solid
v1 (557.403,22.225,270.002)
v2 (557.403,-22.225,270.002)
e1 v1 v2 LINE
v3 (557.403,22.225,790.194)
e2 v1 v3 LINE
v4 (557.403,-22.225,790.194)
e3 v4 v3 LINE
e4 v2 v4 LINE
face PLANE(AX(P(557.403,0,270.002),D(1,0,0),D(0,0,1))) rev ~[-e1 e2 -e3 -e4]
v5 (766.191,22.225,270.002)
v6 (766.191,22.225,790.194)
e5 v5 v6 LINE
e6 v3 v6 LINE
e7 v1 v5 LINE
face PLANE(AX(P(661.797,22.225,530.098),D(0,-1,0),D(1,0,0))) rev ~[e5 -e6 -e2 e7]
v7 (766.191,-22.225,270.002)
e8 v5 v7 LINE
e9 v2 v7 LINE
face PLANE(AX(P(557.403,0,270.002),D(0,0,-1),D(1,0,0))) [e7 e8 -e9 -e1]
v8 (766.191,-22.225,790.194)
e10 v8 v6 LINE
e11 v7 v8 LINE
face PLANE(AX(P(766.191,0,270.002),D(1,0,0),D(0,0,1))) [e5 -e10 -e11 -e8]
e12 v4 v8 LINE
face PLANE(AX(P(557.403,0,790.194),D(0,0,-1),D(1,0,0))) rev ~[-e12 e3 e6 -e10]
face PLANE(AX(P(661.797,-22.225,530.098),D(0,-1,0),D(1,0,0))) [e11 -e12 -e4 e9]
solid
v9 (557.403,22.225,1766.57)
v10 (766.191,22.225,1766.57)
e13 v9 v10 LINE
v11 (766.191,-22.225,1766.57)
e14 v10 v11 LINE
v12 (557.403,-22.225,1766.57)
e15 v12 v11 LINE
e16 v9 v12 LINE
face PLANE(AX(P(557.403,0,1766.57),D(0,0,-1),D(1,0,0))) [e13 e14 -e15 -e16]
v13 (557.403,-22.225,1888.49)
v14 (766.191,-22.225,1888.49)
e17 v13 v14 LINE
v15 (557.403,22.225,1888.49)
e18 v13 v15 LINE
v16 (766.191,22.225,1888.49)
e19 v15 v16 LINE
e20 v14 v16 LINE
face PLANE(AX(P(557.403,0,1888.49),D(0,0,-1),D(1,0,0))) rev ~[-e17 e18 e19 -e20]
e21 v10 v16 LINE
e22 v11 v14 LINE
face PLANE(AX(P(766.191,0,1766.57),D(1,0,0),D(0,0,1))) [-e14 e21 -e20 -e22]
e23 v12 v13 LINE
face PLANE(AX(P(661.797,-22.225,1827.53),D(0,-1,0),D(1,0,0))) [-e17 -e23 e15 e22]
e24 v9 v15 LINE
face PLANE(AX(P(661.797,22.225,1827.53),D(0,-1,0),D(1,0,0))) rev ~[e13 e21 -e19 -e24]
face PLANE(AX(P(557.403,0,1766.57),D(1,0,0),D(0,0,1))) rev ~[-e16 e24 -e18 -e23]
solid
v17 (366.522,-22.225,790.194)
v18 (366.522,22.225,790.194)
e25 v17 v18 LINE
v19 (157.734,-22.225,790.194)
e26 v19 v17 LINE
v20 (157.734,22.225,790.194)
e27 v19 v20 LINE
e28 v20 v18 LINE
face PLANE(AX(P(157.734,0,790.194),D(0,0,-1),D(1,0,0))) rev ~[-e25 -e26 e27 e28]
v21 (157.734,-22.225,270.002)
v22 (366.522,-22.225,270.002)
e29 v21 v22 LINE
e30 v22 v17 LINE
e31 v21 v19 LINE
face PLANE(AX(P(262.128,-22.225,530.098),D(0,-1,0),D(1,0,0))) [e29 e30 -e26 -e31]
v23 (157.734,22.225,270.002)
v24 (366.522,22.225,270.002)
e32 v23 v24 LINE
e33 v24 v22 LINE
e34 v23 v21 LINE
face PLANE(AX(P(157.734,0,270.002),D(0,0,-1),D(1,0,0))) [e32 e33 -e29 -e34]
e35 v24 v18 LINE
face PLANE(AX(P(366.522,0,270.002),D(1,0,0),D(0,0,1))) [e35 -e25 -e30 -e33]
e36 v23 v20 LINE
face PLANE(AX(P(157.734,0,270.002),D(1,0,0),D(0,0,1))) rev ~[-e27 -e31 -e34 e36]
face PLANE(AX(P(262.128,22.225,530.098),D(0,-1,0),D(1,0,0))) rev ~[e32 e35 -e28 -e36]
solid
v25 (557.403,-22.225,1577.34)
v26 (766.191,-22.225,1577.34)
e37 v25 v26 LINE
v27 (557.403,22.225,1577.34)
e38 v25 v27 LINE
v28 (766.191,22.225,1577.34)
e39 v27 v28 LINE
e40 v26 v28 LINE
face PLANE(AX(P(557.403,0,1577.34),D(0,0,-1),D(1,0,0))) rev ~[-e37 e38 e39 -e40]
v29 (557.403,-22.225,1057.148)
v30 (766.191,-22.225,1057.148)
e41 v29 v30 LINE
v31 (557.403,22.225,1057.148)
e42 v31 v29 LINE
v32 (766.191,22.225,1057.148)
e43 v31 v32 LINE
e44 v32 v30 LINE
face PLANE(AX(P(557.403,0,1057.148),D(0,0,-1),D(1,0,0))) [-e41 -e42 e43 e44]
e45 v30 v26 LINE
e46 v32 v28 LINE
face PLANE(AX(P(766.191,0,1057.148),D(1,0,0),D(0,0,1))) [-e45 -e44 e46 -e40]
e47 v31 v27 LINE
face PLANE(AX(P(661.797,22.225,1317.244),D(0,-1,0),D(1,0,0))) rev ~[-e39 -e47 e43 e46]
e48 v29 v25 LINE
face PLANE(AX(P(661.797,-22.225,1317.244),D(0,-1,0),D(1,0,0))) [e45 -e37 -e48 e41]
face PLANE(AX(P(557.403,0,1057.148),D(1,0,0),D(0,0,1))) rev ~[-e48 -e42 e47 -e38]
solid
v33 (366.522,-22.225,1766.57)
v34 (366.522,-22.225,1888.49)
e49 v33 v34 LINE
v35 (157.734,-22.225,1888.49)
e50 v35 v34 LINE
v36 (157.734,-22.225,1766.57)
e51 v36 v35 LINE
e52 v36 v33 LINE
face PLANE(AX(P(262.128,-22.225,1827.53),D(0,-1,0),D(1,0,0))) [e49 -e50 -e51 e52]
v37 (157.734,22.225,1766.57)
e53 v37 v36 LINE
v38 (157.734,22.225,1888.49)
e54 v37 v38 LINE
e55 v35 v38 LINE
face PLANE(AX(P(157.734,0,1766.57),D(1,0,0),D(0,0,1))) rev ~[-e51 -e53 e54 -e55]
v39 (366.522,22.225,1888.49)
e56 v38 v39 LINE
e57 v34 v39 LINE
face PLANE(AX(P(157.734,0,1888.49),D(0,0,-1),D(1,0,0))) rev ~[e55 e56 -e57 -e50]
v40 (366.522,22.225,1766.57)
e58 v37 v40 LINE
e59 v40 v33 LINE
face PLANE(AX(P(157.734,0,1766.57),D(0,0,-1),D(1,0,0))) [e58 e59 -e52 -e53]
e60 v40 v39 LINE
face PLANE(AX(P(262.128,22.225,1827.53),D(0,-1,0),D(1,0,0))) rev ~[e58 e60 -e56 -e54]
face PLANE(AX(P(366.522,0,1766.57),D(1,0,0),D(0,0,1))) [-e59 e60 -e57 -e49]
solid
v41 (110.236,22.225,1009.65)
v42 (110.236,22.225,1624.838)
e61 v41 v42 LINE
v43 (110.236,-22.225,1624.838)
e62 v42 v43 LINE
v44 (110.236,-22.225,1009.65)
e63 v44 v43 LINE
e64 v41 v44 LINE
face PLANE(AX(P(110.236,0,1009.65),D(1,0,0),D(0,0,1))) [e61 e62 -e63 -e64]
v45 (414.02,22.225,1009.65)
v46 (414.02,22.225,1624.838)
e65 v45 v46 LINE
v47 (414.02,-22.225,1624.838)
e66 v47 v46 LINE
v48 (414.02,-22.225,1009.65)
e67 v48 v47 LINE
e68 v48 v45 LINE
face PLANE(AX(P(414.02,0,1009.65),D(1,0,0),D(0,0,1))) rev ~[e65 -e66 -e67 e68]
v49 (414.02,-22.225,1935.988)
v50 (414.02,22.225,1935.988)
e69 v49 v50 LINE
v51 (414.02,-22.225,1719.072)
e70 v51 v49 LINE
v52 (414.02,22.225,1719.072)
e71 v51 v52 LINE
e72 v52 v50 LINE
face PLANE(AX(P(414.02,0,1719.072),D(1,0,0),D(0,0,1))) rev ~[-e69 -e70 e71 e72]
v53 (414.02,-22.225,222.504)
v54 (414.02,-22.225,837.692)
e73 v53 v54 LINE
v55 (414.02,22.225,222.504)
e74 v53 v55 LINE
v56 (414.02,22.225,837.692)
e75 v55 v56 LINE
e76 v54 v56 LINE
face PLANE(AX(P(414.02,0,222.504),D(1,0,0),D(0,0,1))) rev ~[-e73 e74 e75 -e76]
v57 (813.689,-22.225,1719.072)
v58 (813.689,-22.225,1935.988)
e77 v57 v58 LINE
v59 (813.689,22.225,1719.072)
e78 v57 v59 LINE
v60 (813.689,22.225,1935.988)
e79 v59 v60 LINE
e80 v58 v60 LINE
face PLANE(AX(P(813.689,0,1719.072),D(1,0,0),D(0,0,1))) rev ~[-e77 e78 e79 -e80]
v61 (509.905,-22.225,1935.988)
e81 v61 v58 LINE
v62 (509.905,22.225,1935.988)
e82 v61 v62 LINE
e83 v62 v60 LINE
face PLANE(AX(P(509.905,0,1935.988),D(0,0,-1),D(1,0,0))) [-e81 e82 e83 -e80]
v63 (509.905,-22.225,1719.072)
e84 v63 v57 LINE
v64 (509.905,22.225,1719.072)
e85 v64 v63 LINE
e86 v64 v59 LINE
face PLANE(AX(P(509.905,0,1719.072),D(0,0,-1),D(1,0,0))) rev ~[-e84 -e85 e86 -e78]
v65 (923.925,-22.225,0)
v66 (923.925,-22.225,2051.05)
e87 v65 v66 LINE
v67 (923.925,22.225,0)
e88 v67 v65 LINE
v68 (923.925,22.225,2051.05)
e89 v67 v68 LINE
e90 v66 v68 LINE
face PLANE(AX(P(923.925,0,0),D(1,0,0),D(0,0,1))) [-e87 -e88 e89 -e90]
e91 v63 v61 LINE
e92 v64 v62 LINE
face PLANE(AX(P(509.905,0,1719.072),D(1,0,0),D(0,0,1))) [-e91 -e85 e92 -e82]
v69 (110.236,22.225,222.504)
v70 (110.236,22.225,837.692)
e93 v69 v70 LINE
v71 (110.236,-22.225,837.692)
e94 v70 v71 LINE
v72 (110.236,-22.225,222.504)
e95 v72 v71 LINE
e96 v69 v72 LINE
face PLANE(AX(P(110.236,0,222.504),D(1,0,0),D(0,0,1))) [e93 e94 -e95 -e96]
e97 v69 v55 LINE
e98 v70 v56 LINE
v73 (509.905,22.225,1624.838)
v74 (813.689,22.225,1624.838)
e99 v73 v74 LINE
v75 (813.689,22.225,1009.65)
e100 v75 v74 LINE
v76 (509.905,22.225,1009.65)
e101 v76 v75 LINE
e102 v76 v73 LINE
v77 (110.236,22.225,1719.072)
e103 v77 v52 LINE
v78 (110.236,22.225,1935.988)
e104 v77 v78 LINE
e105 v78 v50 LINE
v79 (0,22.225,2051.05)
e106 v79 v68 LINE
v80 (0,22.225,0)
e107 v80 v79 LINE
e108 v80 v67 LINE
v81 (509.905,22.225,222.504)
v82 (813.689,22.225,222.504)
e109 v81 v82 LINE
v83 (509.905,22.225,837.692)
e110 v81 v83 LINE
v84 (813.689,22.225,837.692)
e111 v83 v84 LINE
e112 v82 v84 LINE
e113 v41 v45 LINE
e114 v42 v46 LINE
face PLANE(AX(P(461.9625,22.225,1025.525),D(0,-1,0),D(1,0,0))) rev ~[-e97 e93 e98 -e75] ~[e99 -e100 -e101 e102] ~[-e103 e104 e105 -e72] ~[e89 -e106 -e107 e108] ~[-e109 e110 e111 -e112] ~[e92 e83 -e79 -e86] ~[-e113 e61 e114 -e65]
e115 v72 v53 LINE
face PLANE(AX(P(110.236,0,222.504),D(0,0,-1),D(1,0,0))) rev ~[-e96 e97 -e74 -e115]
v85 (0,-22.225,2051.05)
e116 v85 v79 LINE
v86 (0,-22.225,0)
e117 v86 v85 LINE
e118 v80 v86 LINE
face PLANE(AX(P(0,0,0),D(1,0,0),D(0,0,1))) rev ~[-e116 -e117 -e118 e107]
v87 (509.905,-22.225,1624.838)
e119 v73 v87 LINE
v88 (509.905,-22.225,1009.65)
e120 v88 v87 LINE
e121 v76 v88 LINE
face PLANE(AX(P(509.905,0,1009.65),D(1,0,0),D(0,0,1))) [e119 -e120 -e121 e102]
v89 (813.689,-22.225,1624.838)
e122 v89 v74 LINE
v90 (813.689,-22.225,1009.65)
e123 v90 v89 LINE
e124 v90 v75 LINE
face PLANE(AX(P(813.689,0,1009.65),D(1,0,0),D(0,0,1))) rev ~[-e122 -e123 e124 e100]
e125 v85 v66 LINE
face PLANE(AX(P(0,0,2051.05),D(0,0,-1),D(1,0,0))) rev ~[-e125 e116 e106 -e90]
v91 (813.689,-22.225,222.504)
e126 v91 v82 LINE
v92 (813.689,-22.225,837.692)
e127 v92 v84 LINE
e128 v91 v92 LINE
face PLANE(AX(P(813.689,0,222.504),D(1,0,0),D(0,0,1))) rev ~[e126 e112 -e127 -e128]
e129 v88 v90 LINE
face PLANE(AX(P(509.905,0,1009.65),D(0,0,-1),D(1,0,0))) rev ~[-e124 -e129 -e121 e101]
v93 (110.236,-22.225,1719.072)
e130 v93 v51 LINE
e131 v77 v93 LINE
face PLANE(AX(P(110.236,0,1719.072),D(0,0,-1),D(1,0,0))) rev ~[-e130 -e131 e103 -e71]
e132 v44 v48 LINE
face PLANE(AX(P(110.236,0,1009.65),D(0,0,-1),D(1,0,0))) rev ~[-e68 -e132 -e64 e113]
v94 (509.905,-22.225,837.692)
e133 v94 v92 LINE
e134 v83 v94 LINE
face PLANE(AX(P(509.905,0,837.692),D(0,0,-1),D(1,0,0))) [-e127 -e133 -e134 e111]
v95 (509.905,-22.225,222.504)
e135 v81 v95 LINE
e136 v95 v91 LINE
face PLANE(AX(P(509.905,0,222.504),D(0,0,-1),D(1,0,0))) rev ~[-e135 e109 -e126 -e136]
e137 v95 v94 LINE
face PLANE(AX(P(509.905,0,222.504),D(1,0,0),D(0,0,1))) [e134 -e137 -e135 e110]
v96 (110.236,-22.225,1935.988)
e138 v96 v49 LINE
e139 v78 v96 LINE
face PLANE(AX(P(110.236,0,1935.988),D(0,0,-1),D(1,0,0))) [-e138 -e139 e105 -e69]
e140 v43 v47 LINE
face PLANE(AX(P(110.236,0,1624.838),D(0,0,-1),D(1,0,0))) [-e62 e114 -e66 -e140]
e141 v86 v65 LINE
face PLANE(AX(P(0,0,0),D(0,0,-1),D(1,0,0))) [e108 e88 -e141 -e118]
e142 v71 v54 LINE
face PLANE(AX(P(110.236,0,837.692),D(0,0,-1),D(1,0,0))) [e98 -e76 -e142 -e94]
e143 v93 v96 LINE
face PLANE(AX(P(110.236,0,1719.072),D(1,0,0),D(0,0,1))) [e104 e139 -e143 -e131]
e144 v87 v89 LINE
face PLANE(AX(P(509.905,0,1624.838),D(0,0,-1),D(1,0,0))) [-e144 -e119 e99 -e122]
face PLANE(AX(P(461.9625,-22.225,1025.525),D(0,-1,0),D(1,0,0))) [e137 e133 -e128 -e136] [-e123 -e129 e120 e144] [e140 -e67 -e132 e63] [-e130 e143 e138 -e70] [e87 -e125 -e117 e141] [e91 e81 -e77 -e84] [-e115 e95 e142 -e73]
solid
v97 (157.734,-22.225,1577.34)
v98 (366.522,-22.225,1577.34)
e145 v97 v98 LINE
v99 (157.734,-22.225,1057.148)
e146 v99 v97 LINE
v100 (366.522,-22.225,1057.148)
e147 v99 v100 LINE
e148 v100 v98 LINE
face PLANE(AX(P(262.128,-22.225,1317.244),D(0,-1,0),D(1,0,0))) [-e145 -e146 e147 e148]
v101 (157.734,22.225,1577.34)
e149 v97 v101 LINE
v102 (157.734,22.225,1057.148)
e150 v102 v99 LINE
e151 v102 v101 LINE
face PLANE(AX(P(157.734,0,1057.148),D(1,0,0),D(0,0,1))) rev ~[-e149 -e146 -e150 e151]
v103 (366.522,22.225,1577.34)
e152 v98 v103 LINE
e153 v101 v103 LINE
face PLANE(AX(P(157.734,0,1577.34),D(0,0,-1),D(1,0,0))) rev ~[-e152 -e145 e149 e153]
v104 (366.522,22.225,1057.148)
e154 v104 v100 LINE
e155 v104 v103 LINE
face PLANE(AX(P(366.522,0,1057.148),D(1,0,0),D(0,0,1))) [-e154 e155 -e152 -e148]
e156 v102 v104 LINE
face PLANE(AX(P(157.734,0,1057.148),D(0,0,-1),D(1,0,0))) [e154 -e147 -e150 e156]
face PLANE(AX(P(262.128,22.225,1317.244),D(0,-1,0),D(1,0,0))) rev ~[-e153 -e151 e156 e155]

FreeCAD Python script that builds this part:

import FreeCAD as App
import Part
import Sketcher
from FreeCAD import Vector
Q = App.Units.Quantity


def add_polygon(sketch, points):
    """Adds a closed chain of lines whose ends are joined by coincident constraints."""
    first, n = sketch.GeometryCount, len(points)
    for a, b in zip(points, points[1:] + points[:1]):
        sketch.addGeometry(Part.LineSegment(App.Vector(*a, 0), App.Vector(*b, 0)), False)
    for i in range(n):
        sketch.addConstraint(Sketcher.Constraint("Coincident", first + i, 2, first + (i + 1) % n, 1))

doc = App.newDocument("Part")
body = doc.addObject("PartDesign::Body", "Body")

# Sketch on XZ plane
sketch1 = doc.addObject("Sketcher::SketchObject", "Sketch")
body.addObject(sketch1)
sketch1.AttachmentSupport = (doc.XZ_Plane, [""])
sketch1.MapMode = "FlatFace"
add_polygon(sketch1, [(0, 2051.05), (0, 0), (923.925, 0), (923.925, 2051.05)])  # lines 0-3
add_polygon(sketch1, [(414.02, 222.504), (110.236, 222.504), (110.236, 837.692), (414.02, 837.692)])  # lines 4-7
add_polygon(sketch1, [(813.689, 222.504), (509.905, 222.504), (509.905, 837.692), (813.689, 837.692)])  # lines 8-11
add_polygon(sketch1, [(414.02, 1009.65), (110.236, 1009.65), (110.236, 1624.838), (414.02, 1624.838)])  # lines 12-15
add_polygon(sketch1, [(414.02, 1719.072), (110.236, 1719.072), (110.236, 1935.988), (414.02, 1935.988)])  # lines 16-19
add_polygon(sketch1, [(813.689, 1009.65), (509.905, 1009.65), (509.905, 1624.838), (813.689, 1624.838)])  # lines 20-23
add_polygon(sketch1, [(813.689, 1719.072), (509.905, 1719.072), (509.905, 1935.988), (813.689, 1935.988)])  # lines 24-27
sketch1.addConstraint(Sketcher.Constraint("Vertical", 0))
sketch1.addConstraint(Sketcher.Constraint("Horizontal", 1))
sketch1.addConstraint(Sketcher.Constraint("Vertical", 2))
sketch1.addConstraint(Sketcher.Constraint("Horizontal", 3))
sketch1.addConstraint(Sketcher.Constraint("Horizontal", 4))
sketch1.addConstraint(Sketcher.Constraint("Vertical", 5))
sketch1.addConstraint(Sketcher.Constraint("Horizontal", 6))
sketch1.addConstraint(Sketcher.Constraint("Vertical", 7))
sketch1.addConstraint(Sketcher.Constraint("Horizontal", 8))
sketch1.addConstraint(Sketcher.Constraint("Vertical", 9))
sketch1.addConstraint(Sketcher.Constraint("Horizontal", 10))
sketch1.addConstraint(Sketcher.Constraint("Vertical", 11))
sketch1.addConstraint(Sketcher.Constraint("Horizontal", 12))
sketch1.addConstraint(Sketcher.Constraint("Vertical", 13))
sketch1.addConstraint(Sketcher.Constraint("Horizontal", 14))
sketch1.addConstraint(Sketcher.Constraint("Vertical", 15))
sketch1.addConstraint(Sketcher.Constraint("Horizontal", 16))
sketch1.addConstraint(Sketcher.Constraint("Vertical", 17))
sketch1.addConstraint(Sketcher.Constraint("Horizontal", 18))
sketch1.addConstraint(Sketcher.Constraint("Vertical", 19))
sketch1.addConstraint(Sketcher.Constraint("Horizontal", 20))
sketch1.addConstraint(Sketcher.Constraint("Vertical", 21))
sketch1.addConstraint(Sketcher.Constraint("Horizontal", 22))
sketch1.addConstraint(Sketcher.Constraint("Vertical", 23))
sketch1.addConstraint(Sketcher.Constraint("Horizontal", 24))
sketch1.addConstraint(Sketcher.Constraint("Vertical", 25))
sketch1.addConstraint(Sketcher.Constraint("Horizontal", 26))
sketch1.addConstraint(Sketcher.Constraint("Vertical", 27))
sketch1.addConstraint(Sketcher.Constraint("Coincident", 0, 2, -1, 1))
sketch1.addConstraint(Sketcher.Constraint("Horizontal", 7, 2, 8, 2))
sketch1.addConstraint(Sketcher.Constraint("Horizontal", 6, 2, 9, 2))
sketch1.addConstraint(Sketcher.Constraint("Horizontal", 15, 2, 20, 2))
sketch1.addConstraint(Sketcher.Constraint("Horizontal", 14, 2, 21, 2))
sketch1.addConstraint(Sketcher.Constraint("Horizontal", 19, 2, 24, 2))
sketch1.addConstraint(Sketcher.Constraint("Horizontal", 18, 2, 25, 2))
sketch1.addConstraint(Sketcher.Constraint("Vertical", 5, 2, 12, 2))
sketch1.addConstraint(Sketcher.Constraint("Vertical", 7, 2, 14, 2))
sketch1.addConstraint(Sketcher.Constraint("Vertical", 13, 2, 16, 2))
sketch1.addConstraint(Sketcher.Constraint("Vertical", 15, 2, 18, 2))
sketch1.addConstraint(Sketcher.Constraint("Vertical", 9, 2, 20, 2))
sketch1.addConstraint(Sketcher.Constraint("Vertical", 11, 2, 22, 2))
sketch1.addConstraint(Sketcher.Constraint("Vertical", 21, 2, 24, 2))
sketch1.addConstraint(Sketcher.Constraint("Vertical", 23, 2, 26, 2))
sketch1.addConstraint(Sketcher.Constraint("Equal", 6, 8))
sketch1.addConstraint(Sketcher.Constraint("Equal", 11, 13))
sketch1.addConstraint(Sketcher.Constraint("DistanceX", 4, 2, 4, 1, Q("11.96 in")))
sketch1.addConstraint(Sketcher.Constraint("DistanceY", 0, 2, 0, 1, Q("80.75 in")))
sketch1.addConstraint(Sketcher.Constraint("DistanceY", 5, 1, 5, 2, Q("24.22 in")))
sketch1.addConstraint(Sketcher.Constraint("DistanceY", 17, 1, 17, 2, Q("8.54 in")))
sketch1.addConstraint(Sketcher.Constraint("DistanceX", -1, 1, 6, 2, Q("16.3 in")))
sketch1.addConstraint(Sketcher.Constraint("DistanceX", 8, 2, 1, 2, Q("16.3 in")))
sketch1.addConstraint(Sketcher.Constraint("DistanceX", 1, 1, 1, 2, Q("36.375 in")))
sketch1.addConstraint(Sketcher.Constraint("DistanceY", -1, 1, 4, 2, Q("8.76 in")))
sketch1.addConstraint(Sketcher.Constraint("DistanceY", -1, 1, 12, 2, Q("39.75 in")))
sketch1.addConstraint(Sketcher.Constraint("DistanceY", -1, 1, 16, 2, Q("67.68 in")))
pad1 = doc.addObject("PartDesign::Pad", "Pad")
body.addObject(pad1)
pad1.Profile = sketch1
pad1.Type = "TwoLengths"
pad1.Length = Q("0.875 in")
pad1.Length2 = Q("0.875 in")
body2 = doc.addObject("PartDesign::Body", "Body001")
body2.AllowCompound = True

# Sketch on XZ plane
sketch2 = doc.addObject("Sketcher::SketchObject", "Sketch001")
body2.addObject(sketch2)
sketch2.AttachmentSupport = (doc.getObject("XZ_Plane001"), [""])
sketch2.MapMode = "FlatFace"
add_polygon(sketch2, [(157.734, 1888.49), (157.734, 1766.57), (366.522, 1766.57), (366.522, 1888.49)])  # lines 0-3
add_polygon(sketch2, [(557.403, 1888.49), (557.403, 1766.57), (766.191, 1766.57), (766.191, 1888.49)])  # lines 4-7
add_polygon(sketch2, [(557.403, 1577.34), (557.403, 1057.148), (766.191, 1057.148), (766.191, 1577.34)])  # lines 8-11
add_polygon(sketch2, [(157.734, 1577.34), (157.734, 1057.148), (366.522, 1057.148), (366.522, 1577.34)])  # lines 12-15
add_polygon(sketch2, [(157.734, 790.194), (157.734, 270.002), (366.522, 270.002), (366.522, 790.194)])  # lines 16-19
add_polygon(sketch2, [(557.403, 790.194), (557.403, 270.002), (766.191, 270.002), (766.191, 790.194)])  # lines 20-23
sketch2.addConstraint(Sketcher.Constraint("Vertical", 0))
sketch2.addConstraint(Sketcher.Constraint("Horizontal", 1))
sketch2.addConstraint(Sketcher.Constraint("Vertical", 2))
sketch2.addConstraint(Sketcher.Constraint("Horizontal", 3))
sketch2.addConstraint(Sketcher.Constraint("Vertical", 4))
sketch2.addConstraint(Sketcher.Constraint("Horizontal", 5))
sketch2.addConstraint(Sketcher.Constraint("Vertical", 6))
sketch2.addConstraint(Sketcher.Constraint("Horizontal", 7))
sketch2.addConstraint(Sketcher.Constraint("Vertical", 8))
sketch2.addConstraint(Sketcher.Constraint("Horizontal", 9))
sketch2.addConstraint(Sketcher.Constraint("Vertical", 10))
sketch2.addConstraint(Sketcher.Constraint("Horizontal", 11))
sketch2.addConstraint(Sketcher.Constraint("Vertical", 12))
sketch2.addConstraint(Sketcher.Constraint("Horizontal", 13))
sketch2.addConstraint(Sketcher.Constraint("Vertical", 14))
sketch2.addConstraint(Sketcher.Constraint("Horizontal", 15))
sketch2.addConstraint(Sketcher.Constraint("Vertical", 16))
sketch2.addConstraint(Sketcher.Constraint("Horizontal", 17))
sketch2.addConstraint(Sketcher.Constraint("Vertical", 18))
sketch2.addConstraint(Sketcher.Constraint("Horizontal", 19))
sketch2.addConstraint(Sketcher.Constraint("Vertical", 20))
sketch2.addConstraint(Sketcher.Constraint("Horizontal", 21))
sketch2.addConstraint(Sketcher.Constraint("Vertical", 22))
sketch2.addConstraint(Sketcher.Constraint("Horizontal", 23))
sketch2.addConstraint(Sketcher.Constraint("Horizontal", 1, 2, 4, 2))
sketch2.addConstraint(Sketcher.Constraint("Horizontal", 3, 2, 6, 2))
sketch2.addConstraint(Sketcher.Constraint("Horizontal", 9, 2, 12, 2))
sketch2.addConstraint(Sketcher.Constraint("Horizontal", 11, 2, 14, 2))
sketch2.addConstraint(Sketcher.Constraint("Horizontal", 17, 2, 20, 2))
sketch2.addConstraint(Sketcher.Constraint("Horizontal", 19, 2, 22, 2))
sketch2.addConstraint(Sketcher.Constraint("Vertical", 7, 2, 8, 2))
sketch2.addConstraint(Sketcher.Constraint("Vertical", 6, 2, 9, 2))
sketch2.addConstraint(Sketcher.Constraint("Vertical", 3, 2, 12, 2))
sketch2.addConstraint(Sketcher.Constraint("Vertical", 2, 2, 13, 2))
sketch2.addConstraint(Sketcher.Constraint("Vertical", 15, 2, 16, 2))
sketch2.addConstraint(Sketcher.Constraint("Vertical", 14, 2, 17, 2))
sketch2.addConstraint(Sketcher.Constraint("Vertical", 11, 2, 20, 2))
sketch2.addConstraint(Sketcher.Constraint("Vertical", 10, 2, 21, 2))
sketch2.addConstraint(Sketcher.Constraint("Equal", 3, 5))
sketch2.addConstraint(Sketcher.Constraint("Equal", 14, 16))
sketch2.addConstraint(Sketcher.Constraint("DistanceY", 0, 2, 0, 1, Q("4.8 in")))
sketch2.addConstraint(Sketcher.Constraint("DistanceX", 1, 1, 1, 2, Q("8.22 in")))
sketch2.addConstraint(Sketcher.Constraint("DistanceY", 8, 2, 8, 1, Q("20.48 in")))
sketch2.addConstraint(Sketcher.Constraint("DistanceY", -1, 1, 10, 2, Q("62.1 in")))
sketch2.addConstraint(Sketcher.Constraint("DistanceX", -1, 1, 0, 2, Q("6.21 in")))
sketch2.addConstraint(Sketcher.Constraint("DistanceY", -1, 1, 0, 2, Q("69.55 in")))
sketch2.addConstraint(Sketcher.Constraint("DistanceY", -1, 1, 16, 2, Q("10.63 in")))
sketch2.addConstraint(Sketcher.Constraint("DistanceX", -1, 1, 4, 2, Q("21.945 in")))
pad2 = doc.addObject("PartDesign::Pad", "Pad001")
body2.addObject(pad2)
pad2.Profile = sketch2
pad2.Type = "TwoLengths"
pad2.Length = Q("0.875 in")
pad2.Length2 = Q("0.875 in")

doc.recompute()
